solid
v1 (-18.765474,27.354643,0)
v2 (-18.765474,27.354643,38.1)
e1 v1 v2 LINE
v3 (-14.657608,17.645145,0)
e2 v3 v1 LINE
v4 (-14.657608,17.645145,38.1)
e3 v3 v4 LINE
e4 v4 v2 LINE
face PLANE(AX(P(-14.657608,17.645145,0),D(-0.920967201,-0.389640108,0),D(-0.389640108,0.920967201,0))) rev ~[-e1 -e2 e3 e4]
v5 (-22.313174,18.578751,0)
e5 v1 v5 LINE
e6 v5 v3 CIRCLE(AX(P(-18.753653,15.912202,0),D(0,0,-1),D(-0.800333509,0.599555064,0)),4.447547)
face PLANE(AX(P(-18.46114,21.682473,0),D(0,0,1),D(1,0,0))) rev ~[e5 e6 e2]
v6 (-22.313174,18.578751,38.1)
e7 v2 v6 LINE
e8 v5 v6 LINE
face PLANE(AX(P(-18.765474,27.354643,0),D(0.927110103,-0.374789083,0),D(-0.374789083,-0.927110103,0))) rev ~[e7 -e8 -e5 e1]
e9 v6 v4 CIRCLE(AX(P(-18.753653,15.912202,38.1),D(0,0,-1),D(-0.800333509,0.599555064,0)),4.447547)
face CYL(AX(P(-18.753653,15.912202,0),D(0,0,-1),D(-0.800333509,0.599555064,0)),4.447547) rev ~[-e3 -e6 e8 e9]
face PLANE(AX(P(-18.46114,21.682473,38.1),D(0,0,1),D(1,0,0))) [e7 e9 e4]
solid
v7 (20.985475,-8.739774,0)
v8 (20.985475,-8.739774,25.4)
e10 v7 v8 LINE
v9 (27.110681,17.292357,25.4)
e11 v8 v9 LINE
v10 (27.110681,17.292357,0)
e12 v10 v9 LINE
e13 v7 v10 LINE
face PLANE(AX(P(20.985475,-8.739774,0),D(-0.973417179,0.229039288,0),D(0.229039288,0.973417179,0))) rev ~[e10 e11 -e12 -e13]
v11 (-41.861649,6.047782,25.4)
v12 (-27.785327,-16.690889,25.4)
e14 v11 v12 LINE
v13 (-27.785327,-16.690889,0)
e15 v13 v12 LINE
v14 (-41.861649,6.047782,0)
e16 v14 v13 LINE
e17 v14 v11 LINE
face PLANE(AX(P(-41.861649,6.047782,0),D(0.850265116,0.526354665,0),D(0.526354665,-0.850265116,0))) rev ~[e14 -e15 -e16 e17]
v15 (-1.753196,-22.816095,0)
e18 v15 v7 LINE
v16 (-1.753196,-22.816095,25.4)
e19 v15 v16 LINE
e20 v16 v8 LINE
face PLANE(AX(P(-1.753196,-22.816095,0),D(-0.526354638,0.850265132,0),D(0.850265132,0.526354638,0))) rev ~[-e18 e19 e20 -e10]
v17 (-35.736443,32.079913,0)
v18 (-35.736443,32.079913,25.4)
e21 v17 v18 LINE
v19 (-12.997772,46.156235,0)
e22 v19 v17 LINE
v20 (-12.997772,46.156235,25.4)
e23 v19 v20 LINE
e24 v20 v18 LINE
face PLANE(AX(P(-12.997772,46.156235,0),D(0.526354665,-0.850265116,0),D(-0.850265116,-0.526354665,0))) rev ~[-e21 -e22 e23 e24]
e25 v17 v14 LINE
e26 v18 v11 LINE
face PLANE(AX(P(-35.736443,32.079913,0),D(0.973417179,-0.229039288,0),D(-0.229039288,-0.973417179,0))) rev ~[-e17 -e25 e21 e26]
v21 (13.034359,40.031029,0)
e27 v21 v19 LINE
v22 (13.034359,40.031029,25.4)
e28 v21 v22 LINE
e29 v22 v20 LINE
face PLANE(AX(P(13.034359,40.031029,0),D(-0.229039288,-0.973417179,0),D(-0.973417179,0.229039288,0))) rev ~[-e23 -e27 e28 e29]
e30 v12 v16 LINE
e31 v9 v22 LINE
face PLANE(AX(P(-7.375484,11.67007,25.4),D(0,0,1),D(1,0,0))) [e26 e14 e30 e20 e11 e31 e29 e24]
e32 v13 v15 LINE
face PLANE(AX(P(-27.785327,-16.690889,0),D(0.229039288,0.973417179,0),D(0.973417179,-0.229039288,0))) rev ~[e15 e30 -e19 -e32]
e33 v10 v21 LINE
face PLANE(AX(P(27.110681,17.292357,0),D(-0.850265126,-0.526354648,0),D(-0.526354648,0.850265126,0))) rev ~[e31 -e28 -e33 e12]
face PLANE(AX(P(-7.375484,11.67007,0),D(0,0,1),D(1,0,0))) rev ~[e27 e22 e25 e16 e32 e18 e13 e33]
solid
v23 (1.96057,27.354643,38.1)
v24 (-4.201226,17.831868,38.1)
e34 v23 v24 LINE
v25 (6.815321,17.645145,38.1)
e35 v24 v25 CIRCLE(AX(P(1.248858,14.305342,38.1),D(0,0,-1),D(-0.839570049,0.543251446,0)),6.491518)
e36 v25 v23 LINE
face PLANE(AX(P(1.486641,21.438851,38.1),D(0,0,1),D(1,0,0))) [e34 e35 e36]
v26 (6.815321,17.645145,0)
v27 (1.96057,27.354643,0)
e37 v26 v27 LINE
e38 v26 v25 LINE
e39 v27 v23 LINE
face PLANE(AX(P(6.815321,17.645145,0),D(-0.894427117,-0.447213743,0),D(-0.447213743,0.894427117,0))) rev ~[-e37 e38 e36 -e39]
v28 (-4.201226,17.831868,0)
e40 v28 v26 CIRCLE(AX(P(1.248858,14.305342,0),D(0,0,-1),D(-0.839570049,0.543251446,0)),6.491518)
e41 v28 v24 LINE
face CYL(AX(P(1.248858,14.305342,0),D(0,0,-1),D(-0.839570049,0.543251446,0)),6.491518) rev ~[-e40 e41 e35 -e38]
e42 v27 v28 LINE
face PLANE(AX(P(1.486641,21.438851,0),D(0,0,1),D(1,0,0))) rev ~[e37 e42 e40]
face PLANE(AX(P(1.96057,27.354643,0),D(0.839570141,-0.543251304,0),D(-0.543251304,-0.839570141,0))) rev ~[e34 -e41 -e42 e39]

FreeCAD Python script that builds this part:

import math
import FreeCAD as App
import Part
import Sketcher
from FreeCAD import Vector
Q = App.Units.Quantity

doc = App.newDocument("Part")
params = doc.addObject("Spreadsheet::Sheet", "Params")
for row, (alias, value) in enumerate([
    ("pad1_length", "1.5 in"),
    ("pad2_length", "1 in"),
], start=1):
    params.set(f"A{row}", alias)
    params.set(f"B{row}", "=" + value)
    params.setAlias(f"B{row}", alias)

body = doc.addObject("PartDesign::Body", "Body")
body.AllowCompound = True

sketch1 = body.newObject("Sketcher::SketchObject", "Sketch")
sketch1.AttachmentSupport = (doc.getObject("XY_Plane"), [""])
sketch1.MapMode = "FlatFace"
sketch1.addGeometry([
    Part.LineSegment(Vector(-18.765474, 27.354643, 0), Vector(-22.313174, 18.578751, 0)),
    Part.ArcOfCircle(Part.Circle(Vector(-18.753653, 15.912202, 0), Vector(0, 0, 1), 4.447547), math.radians(22.932117), math.radians(143.161962)),
    Part.LineSegment(Vector(-14.657608, 17.645145, 0), Vector(-18.765474, 27.354643, 0)),
    Part.LineSegment(Vector(1.96057, 27.354643, 0), Vector(-4.201226, 17.831868, 0)),
    Part.ArcOfCircle(Part.Circle(Vector(1.248858, 14.305342, 0), Vector(0, 0, 1), 6.491518), math.radians(30.963191), math.radians(147.094746)),
    Part.LineSegment(Vector(6.815321, 17.645145, 0), Vector(1.96057, 27.354643, 0)),
], False)
sketch1.addConstraint([
    Sketcher.Constraint("Coincident", 0, 2, 1, 2),
    Sketcher.Constraint("Tangent", 1, 1, 2, 1),
    Sketcher.Constraint("Coincident", 2, 2, 0, 1),
    Sketcher.Constraint("Tangent", 3, 2, 4, 2),
    Sketcher.Constraint("Coincident", 4, 1, 5, 1),
    Sketcher.Constraint("Coincident", 5, 2, 3, 1),
    Sketcher.Constraint("Horizontal", 1, 1, 4, 1),
    Sketcher.Constraint("Horizontal", 2, 2, 5, 2),
    Sketcher.Constraint("Radius", 1, 4.447547),
    Sketcher.Constraint("Radius", 4, 6.491518),
    Sketcher.Constraint("DistanceY", -1, 1, 1, 3, 15.912202),
    Sketcher.Constraint("DistanceX", 0, 2, 2, 2, 3.5477),
    Sketcher.Constraint("DistanceY", 4, 3, 2, 2, 13.049301),
    Sketcher.Constraint("DistanceY", 4, 1, 2, 2, 9.709498),
    Sketcher.Constraint("Distance", 2, 10.542719),
    Sketcher.Constraint("Distance", 3, 11.342441),
    Sketcher.Constraint("DistanceX", -1, 1, 4, 1, 6.815321),
    Sketcher.Constraint("DistanceX", 1, 3, 4, 3, 20.002511),
])
pad1 = body.newObject("PartDesign::Pad", "Pad")
pad1.Profile = sketch1
pad1.setExpression("Length", "Params.pad1_length")
body2 = doc.addObject("PartDesign::Body", "Body001")

sketch2 = body2.newObject("Sketcher::SketchObject", "Sketch001")
sketch2.AttachmentSupport = (doc.getObject("XY_Plane001"), [""])
sketch2.MapMode = "FlatFace"
sketch2.addGeometry([
    Part.LineSegment(Vector(-1.753196, -22.816095, 0), Vector(20.985475, -8.739774, 0)),
    Part.LineSegment(Vector(20.985475, -8.739774, 0), Vector(27.110681, 17.292357, 0)),
    Part.LineSegment(Vector(27.110681, 17.292357, 0), Vector(13.034359, 40.031029, 0)),
    Part.LineSegment(Vector(13.034359, 40.031029, 0), Vector(-12.997772, 46.156235, 0)),
    Part.LineSegment(Vector(-12.997772, 46.156235, 0), Vector(-35.736443, 32.079913, 0)),
    Part.LineSegment(Vector(-35.736443, 32.079913, 0), Vector(-41.861649, 6.047782, 0)),
    Part.LineSegment(Vector(-41.861649, 6.047782, 0), Vector(-27.785327, -16.690889, 0)),
    Part.LineSegment(Vector(-27.785327, -16.690889, 0), Vector(-1.753196, -22.816095, 0)),
], False)
sketch2.addConstraint([
    Sketcher.Constraint("Coincident", 0, 2, 1, 1),
    Sketcher.Constraint("Coincident", 1, 2, 2, 1),
    Sketcher.Constraint("Coincident", 2, 2, 3, 1),
    Sketcher.Constraint("Coincident", 3, 2, 4, 1),
    Sketcher.Constraint("Coincident", 4, 2, 5, 1),
    Sketcher.Constraint("Coincident", 5, 2, 6, 1),
    Sketcher.Constraint("Coincident", 6, 2, 7, 1),
    Sketcher.Constraint("Coincident", 7, 2, 0, 1),
    Sketcher.Constraint("Perpendicular", 0, 2),
    Sketcher.Constraint("Perpendicular", 1, 3),
    Sketcher.Constraint("Perpendicular", 2, 4),
    Sketcher.Constraint("Perpendicular", 3, 5),
    Sketcher.Constraint("Perpendicular", 4, 6),
    Sketcher.Constraint("Perpendicular", 5, 7),
    Sketcher.Constraint("Equal", 0, 1),
    Sketcher.Constraint("Equal", 1, 2),
    Sketcher.Constraint("Equal", 2, 3),
    Sketcher.Constraint("Equal", 3, 4),
    Sketcher.Constraint("Equal", 4, 5),
    Sketcher.Constraint("DistanceX", -1, 1, 0, 2, Q("0.8261998 in")),
    Sketcher.Constraint("DistanceY", 5, 2, 1, 2, Q("0.4426998 in")),
    Sketcher.Constraint("DistanceY", 6, 2, 4, 2, 48.770802),
    Sketcher.Constraint("DistanceX", -1, 1, 1, 2, 27.110681),
    Sketcher.Constraint("DistanceY", -1, 1, 2, 2, 40.031029),
])
pad2 = body2.newObject("PartDesign::Pad", "Pad001")
pad2.Profile = sketch2
pad2.setExpression("Length", "Params.pad2_length")

doc.recompute()
